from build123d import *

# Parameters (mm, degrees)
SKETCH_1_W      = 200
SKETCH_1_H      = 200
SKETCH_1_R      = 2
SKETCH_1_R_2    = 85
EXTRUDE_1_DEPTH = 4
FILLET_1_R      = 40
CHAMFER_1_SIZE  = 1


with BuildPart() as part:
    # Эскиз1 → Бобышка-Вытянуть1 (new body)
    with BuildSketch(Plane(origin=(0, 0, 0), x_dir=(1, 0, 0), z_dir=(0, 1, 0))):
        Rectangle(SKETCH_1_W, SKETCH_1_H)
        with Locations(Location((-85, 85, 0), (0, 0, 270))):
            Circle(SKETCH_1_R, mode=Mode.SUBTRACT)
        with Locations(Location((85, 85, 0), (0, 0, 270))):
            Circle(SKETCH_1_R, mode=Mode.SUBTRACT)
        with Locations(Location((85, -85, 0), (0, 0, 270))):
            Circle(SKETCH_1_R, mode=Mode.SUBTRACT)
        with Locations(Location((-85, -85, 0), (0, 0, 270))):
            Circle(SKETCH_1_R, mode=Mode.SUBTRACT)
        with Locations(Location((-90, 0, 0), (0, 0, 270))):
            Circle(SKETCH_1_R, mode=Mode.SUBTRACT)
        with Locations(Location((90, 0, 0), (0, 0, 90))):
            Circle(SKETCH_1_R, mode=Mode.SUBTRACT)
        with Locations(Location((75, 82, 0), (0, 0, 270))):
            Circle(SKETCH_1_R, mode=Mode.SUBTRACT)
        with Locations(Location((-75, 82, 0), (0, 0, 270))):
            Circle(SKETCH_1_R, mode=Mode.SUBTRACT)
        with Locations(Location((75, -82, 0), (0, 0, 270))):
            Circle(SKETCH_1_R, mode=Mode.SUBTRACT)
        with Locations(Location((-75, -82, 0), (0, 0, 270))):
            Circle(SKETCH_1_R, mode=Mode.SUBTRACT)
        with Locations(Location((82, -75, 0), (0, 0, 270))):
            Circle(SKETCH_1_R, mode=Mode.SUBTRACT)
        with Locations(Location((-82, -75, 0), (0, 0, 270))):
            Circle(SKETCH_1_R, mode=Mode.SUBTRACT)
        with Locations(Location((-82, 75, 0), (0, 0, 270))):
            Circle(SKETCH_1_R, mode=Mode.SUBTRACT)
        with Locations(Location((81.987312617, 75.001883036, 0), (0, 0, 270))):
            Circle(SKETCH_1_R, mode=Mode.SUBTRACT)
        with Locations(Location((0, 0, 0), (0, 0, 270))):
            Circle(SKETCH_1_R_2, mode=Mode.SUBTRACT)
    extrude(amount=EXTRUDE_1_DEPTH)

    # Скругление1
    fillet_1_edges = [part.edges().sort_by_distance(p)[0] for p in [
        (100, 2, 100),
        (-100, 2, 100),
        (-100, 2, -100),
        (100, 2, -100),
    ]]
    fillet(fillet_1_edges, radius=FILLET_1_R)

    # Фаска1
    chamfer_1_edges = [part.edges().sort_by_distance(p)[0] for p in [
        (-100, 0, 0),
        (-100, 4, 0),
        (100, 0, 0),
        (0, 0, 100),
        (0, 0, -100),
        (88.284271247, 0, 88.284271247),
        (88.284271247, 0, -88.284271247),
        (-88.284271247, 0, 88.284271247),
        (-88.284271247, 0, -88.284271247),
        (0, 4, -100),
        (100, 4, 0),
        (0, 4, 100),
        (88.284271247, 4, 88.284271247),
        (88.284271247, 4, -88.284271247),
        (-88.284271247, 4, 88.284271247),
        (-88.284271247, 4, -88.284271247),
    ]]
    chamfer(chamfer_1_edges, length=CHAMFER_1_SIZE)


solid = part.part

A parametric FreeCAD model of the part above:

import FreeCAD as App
import Part
import Sketcher


def edges_at(feature, points):
    """Names of the edges that pass closest to the given points."""
    edges = feature.Shape.Edges
    near = lambda p: min(range(len(edges)), key=lambda i: edges[i].distToShape(Part.Vertex(*p))[0])
    return sorted({f"Edge{near(p) + 1}" for p in points})


def add_polygon(sketch, points):
    """Adds a closed chain of lines whose ends are joined by coincident constraints."""
    first, n = sketch.GeometryCount, len(points)
    for a, b in zip(points, points[1:] + points[:1]):
        sketch.addGeometry(Part.LineSegment(App.Vector(*a, 0), App.Vector(*b, 0)), False)
    for i in range(n):
        sketch.addConstraint(Sketcher.Constraint("Coincident", first + i, 2, first + (i + 1) % n, 1))

doc = App.newDocument("Part")
body = doc.addObject("PartDesign::Body", "Body")

# Sketch on XZ plane
sketch1 = body.newObject("Sketcher::SketchObject", "Sketch")
sketch1.AttachmentSupport = (doc.getObject("XZ_Plane"), [""])
sketch1.MapMode = "FlatFace"
add_polygon(sketch1, [(-100, -100), (-100, 100), (100, 100), (100, -100)])  # lines 0-3
sketch1.addGeometry(Part.Circle(App.Vector(-85, 85, 0), App.Vector(0, 0, 1), 2), False)  # 4
sketch1.addGeometry(Part.Circle(App.Vector(-75, 82, 0), App.Vector(0, 0, 1), 2), False)  # 5
sketch1.addGeometry(Part.Circle(App.Vector(-82, 75, 0), App.Vector(0, 0, 1), 2), False)  # 6
sketch1.addGeometry(Part.Circle(App.Vector(75, 82, 0), App.Vector(0, 0, 1), 2), False)  # 7
sketch1.addGeometry(Part.Circle(App.Vector(85, 85, 0), App.Vector(0, 0, 1), 2), False)  # 8
sketch1.addGeometry(Part.Circle(App.Vector(82, 75, 0), App.Vector(0, 0, 1), 2), False)  # 9
sketch1.addGeometry(Part.Circle(App.Vector(-90, 0, 0), App.Vector(0, 0, 1), 2), False)  # 10
sketch1.addGeometry(Part.Circle(App.Vector(-82, -75, 0), App.Vector(0, 0, 1), 2), False)  # 11
sketch1.addGeometry(Part.Circle(App.Vector(-85, -85, 0), App.Vector(0, 0, 1), 2), False)  # 12
sketch1.addGeometry(Part.Circle(App.Vector(-75, -82, 0), App.Vector(0, 0, 1), 2), False)  # 13
sketch1.addGeometry(Part.Circle(App.Vector(0, 0, 0), App.Vector(0, 0, 1), 85), False)  # 14
sketch1.addGeometry(Part.Circle(App.Vector(90, 0, 0), App.Vector(0, 0, 1), 2), False)  # 15
sketch1.addGeometry(Part.Circle(App.Vector(81.987313, -75.001883, 0), App.Vector(0, 0, 1), 2), False)  # 16
sketch1.addGeometry(Part.Circle(App.Vector(75, -82, 0), App.Vector(0, 0, 1), 2), False)  # 17
sketch1.addGeometry(Part.Circle(App.Vector(85, -85, 0), App.Vector(0, 0, 1), 2), False)  # 18
sketch1.addConstraint([
    Sketcher.Constraint("Vertical", 0),
    Sketcher.Constraint("Horizontal", 1),
    Sketcher.Constraint("Vertical", 2),
    Sketcher.Constraint("Horizontal", 3),
    Sketcher.Constraint("Coincident", 14, 3, -1, 1),
    Sketcher.Constraint("Equal", 4, 5),
    Sketcher.Constraint("Equal", 5, 6),
    Sketcher.Constraint("Equal", 6, 7),
    Sketcher.Constraint("Equal", 7, 8),
    Sketcher.Constraint("Equal", 8, 9),
    Sketcher.Constraint("Equal", 9, 10),
    Sketcher.Constraint("Equal", 10, 11),
    Sketcher.Constraint("Equal", 11, 12),
    Sketcher.Constraint("Equal", 12, 13),
    Sketcher.Constraint("Equal", 13, 15),
    Sketcher.Constraint("Equal", 15, 16),
    Sketcher.Constraint("Equal", 16, 17),
    Sketcher.Constraint("Equal", 17, 18),
    Sketcher.Constraint("Symmetric", 9, 3, 11, 3, -1, 1),
    Sketcher.Constraint("Symmetric", 8, 3, 12, 3, -1, 1),
    Sketcher.Constraint("Symmetric", 7, 3, 13, 3, -1, 1),
    Sketcher.Constraint("Symmetric", 10, 3, 15, 3, -1, 1),
    Sketcher.Constraint("Symmetric", 5, 3, 17, 3, -1, 1),
    Sketcher.Constraint("Symmetric", 4, 3, 18, 3, -1, 1),
    Sketcher.Constraint("Symmetric", 0, 2, 2, 2, -1, 1),
    Sketcher.Constraint("Symmetric", 5, 3, 7, 3, -2),
    Sketcher.Constraint("Symmetric", 4, 3, 8, 3, -2),
    Sketcher.Constraint("Symmetric", 6, 3, 9, 3, -2),
    Sketcher.Constraint("PointOnObject", 10, 3, -1),
    Sketcher.Constraint("Equal", 3, 0),
    Sketcher.Constraint("Diameter", 4, 4.0),
    Sketcher.Constraint("Diameter", 14, 170.0),
    Sketcher.Constraint("DistanceX", 1, 1, 1, 2, 200.0),
    Sketcher.Constraint("DistanceX", 4, 3, -1, 1, 85.0),
    Sketcher.Constraint("DistanceY", -1, 1, 4, 3, 85.0),
    Sketcher.Constraint("DistanceX", 5, 3, -1, 1, 75.0),
    Sketcher.Constraint("DistanceY", -1, 1, 5, 3, 82.0),
    Sketcher.Constraint("DistanceX", 6, 3, -1, 1, 82.0),
    Sketcher.Constraint("DistanceY", -1, 1, 6, 3, 75.0),
    Sketcher.Constraint("DistanceX", 10, 3, -1, 1, 90.0),
    Sketcher.Constraint("DistanceX", -1, 1, 16, 3, 81.987313),
    Sketcher.Constraint("DistanceY", 16, 3, -1, 1, 75.001883),
])
pad1 = body.newObject("PartDesign::Pad", "Pad")
pad1.Profile = sketch1
pad1.Length = 4
pad1.Reversed = True
doc.recompute()

fillet = body.newObject("PartDesign::Fillet", "Fillet")
fillet.Base = (pad1, edges_at(pad1, [
    (100, 2, 100),
    (-100, 2, 100),
    (-100, 2, -100),
    (100, 2, -100),
]))
fillet.Radius = 40
doc.recompute()

chamfer = body.newObject("PartDesign::Chamfer", "Chamfer")
chamfer.Base = (fillet, edges_at(fillet, [
    (-100, 0, 0),
    (-100, 4, 0),
    (100, 0, 0),
    (0, 0, 100),
    (0, 0, -100),
    (88.284, 0, 88.284),
    (88.284, 0, -88.284),
    (-88.284, 0, 88.284),
    (-88.284, 0, -88.284),
    (0, 4, -100),
    (100, 4, 0),
    (0, 4, 100),
    (88.284, 4, 88.284),
    (88.284, 4, -88.284),
    (-88.284, 4, 88.284),
    (-88.284, 4, -88.284),
]))
chamfer.Size = 1

doc.recompute()
